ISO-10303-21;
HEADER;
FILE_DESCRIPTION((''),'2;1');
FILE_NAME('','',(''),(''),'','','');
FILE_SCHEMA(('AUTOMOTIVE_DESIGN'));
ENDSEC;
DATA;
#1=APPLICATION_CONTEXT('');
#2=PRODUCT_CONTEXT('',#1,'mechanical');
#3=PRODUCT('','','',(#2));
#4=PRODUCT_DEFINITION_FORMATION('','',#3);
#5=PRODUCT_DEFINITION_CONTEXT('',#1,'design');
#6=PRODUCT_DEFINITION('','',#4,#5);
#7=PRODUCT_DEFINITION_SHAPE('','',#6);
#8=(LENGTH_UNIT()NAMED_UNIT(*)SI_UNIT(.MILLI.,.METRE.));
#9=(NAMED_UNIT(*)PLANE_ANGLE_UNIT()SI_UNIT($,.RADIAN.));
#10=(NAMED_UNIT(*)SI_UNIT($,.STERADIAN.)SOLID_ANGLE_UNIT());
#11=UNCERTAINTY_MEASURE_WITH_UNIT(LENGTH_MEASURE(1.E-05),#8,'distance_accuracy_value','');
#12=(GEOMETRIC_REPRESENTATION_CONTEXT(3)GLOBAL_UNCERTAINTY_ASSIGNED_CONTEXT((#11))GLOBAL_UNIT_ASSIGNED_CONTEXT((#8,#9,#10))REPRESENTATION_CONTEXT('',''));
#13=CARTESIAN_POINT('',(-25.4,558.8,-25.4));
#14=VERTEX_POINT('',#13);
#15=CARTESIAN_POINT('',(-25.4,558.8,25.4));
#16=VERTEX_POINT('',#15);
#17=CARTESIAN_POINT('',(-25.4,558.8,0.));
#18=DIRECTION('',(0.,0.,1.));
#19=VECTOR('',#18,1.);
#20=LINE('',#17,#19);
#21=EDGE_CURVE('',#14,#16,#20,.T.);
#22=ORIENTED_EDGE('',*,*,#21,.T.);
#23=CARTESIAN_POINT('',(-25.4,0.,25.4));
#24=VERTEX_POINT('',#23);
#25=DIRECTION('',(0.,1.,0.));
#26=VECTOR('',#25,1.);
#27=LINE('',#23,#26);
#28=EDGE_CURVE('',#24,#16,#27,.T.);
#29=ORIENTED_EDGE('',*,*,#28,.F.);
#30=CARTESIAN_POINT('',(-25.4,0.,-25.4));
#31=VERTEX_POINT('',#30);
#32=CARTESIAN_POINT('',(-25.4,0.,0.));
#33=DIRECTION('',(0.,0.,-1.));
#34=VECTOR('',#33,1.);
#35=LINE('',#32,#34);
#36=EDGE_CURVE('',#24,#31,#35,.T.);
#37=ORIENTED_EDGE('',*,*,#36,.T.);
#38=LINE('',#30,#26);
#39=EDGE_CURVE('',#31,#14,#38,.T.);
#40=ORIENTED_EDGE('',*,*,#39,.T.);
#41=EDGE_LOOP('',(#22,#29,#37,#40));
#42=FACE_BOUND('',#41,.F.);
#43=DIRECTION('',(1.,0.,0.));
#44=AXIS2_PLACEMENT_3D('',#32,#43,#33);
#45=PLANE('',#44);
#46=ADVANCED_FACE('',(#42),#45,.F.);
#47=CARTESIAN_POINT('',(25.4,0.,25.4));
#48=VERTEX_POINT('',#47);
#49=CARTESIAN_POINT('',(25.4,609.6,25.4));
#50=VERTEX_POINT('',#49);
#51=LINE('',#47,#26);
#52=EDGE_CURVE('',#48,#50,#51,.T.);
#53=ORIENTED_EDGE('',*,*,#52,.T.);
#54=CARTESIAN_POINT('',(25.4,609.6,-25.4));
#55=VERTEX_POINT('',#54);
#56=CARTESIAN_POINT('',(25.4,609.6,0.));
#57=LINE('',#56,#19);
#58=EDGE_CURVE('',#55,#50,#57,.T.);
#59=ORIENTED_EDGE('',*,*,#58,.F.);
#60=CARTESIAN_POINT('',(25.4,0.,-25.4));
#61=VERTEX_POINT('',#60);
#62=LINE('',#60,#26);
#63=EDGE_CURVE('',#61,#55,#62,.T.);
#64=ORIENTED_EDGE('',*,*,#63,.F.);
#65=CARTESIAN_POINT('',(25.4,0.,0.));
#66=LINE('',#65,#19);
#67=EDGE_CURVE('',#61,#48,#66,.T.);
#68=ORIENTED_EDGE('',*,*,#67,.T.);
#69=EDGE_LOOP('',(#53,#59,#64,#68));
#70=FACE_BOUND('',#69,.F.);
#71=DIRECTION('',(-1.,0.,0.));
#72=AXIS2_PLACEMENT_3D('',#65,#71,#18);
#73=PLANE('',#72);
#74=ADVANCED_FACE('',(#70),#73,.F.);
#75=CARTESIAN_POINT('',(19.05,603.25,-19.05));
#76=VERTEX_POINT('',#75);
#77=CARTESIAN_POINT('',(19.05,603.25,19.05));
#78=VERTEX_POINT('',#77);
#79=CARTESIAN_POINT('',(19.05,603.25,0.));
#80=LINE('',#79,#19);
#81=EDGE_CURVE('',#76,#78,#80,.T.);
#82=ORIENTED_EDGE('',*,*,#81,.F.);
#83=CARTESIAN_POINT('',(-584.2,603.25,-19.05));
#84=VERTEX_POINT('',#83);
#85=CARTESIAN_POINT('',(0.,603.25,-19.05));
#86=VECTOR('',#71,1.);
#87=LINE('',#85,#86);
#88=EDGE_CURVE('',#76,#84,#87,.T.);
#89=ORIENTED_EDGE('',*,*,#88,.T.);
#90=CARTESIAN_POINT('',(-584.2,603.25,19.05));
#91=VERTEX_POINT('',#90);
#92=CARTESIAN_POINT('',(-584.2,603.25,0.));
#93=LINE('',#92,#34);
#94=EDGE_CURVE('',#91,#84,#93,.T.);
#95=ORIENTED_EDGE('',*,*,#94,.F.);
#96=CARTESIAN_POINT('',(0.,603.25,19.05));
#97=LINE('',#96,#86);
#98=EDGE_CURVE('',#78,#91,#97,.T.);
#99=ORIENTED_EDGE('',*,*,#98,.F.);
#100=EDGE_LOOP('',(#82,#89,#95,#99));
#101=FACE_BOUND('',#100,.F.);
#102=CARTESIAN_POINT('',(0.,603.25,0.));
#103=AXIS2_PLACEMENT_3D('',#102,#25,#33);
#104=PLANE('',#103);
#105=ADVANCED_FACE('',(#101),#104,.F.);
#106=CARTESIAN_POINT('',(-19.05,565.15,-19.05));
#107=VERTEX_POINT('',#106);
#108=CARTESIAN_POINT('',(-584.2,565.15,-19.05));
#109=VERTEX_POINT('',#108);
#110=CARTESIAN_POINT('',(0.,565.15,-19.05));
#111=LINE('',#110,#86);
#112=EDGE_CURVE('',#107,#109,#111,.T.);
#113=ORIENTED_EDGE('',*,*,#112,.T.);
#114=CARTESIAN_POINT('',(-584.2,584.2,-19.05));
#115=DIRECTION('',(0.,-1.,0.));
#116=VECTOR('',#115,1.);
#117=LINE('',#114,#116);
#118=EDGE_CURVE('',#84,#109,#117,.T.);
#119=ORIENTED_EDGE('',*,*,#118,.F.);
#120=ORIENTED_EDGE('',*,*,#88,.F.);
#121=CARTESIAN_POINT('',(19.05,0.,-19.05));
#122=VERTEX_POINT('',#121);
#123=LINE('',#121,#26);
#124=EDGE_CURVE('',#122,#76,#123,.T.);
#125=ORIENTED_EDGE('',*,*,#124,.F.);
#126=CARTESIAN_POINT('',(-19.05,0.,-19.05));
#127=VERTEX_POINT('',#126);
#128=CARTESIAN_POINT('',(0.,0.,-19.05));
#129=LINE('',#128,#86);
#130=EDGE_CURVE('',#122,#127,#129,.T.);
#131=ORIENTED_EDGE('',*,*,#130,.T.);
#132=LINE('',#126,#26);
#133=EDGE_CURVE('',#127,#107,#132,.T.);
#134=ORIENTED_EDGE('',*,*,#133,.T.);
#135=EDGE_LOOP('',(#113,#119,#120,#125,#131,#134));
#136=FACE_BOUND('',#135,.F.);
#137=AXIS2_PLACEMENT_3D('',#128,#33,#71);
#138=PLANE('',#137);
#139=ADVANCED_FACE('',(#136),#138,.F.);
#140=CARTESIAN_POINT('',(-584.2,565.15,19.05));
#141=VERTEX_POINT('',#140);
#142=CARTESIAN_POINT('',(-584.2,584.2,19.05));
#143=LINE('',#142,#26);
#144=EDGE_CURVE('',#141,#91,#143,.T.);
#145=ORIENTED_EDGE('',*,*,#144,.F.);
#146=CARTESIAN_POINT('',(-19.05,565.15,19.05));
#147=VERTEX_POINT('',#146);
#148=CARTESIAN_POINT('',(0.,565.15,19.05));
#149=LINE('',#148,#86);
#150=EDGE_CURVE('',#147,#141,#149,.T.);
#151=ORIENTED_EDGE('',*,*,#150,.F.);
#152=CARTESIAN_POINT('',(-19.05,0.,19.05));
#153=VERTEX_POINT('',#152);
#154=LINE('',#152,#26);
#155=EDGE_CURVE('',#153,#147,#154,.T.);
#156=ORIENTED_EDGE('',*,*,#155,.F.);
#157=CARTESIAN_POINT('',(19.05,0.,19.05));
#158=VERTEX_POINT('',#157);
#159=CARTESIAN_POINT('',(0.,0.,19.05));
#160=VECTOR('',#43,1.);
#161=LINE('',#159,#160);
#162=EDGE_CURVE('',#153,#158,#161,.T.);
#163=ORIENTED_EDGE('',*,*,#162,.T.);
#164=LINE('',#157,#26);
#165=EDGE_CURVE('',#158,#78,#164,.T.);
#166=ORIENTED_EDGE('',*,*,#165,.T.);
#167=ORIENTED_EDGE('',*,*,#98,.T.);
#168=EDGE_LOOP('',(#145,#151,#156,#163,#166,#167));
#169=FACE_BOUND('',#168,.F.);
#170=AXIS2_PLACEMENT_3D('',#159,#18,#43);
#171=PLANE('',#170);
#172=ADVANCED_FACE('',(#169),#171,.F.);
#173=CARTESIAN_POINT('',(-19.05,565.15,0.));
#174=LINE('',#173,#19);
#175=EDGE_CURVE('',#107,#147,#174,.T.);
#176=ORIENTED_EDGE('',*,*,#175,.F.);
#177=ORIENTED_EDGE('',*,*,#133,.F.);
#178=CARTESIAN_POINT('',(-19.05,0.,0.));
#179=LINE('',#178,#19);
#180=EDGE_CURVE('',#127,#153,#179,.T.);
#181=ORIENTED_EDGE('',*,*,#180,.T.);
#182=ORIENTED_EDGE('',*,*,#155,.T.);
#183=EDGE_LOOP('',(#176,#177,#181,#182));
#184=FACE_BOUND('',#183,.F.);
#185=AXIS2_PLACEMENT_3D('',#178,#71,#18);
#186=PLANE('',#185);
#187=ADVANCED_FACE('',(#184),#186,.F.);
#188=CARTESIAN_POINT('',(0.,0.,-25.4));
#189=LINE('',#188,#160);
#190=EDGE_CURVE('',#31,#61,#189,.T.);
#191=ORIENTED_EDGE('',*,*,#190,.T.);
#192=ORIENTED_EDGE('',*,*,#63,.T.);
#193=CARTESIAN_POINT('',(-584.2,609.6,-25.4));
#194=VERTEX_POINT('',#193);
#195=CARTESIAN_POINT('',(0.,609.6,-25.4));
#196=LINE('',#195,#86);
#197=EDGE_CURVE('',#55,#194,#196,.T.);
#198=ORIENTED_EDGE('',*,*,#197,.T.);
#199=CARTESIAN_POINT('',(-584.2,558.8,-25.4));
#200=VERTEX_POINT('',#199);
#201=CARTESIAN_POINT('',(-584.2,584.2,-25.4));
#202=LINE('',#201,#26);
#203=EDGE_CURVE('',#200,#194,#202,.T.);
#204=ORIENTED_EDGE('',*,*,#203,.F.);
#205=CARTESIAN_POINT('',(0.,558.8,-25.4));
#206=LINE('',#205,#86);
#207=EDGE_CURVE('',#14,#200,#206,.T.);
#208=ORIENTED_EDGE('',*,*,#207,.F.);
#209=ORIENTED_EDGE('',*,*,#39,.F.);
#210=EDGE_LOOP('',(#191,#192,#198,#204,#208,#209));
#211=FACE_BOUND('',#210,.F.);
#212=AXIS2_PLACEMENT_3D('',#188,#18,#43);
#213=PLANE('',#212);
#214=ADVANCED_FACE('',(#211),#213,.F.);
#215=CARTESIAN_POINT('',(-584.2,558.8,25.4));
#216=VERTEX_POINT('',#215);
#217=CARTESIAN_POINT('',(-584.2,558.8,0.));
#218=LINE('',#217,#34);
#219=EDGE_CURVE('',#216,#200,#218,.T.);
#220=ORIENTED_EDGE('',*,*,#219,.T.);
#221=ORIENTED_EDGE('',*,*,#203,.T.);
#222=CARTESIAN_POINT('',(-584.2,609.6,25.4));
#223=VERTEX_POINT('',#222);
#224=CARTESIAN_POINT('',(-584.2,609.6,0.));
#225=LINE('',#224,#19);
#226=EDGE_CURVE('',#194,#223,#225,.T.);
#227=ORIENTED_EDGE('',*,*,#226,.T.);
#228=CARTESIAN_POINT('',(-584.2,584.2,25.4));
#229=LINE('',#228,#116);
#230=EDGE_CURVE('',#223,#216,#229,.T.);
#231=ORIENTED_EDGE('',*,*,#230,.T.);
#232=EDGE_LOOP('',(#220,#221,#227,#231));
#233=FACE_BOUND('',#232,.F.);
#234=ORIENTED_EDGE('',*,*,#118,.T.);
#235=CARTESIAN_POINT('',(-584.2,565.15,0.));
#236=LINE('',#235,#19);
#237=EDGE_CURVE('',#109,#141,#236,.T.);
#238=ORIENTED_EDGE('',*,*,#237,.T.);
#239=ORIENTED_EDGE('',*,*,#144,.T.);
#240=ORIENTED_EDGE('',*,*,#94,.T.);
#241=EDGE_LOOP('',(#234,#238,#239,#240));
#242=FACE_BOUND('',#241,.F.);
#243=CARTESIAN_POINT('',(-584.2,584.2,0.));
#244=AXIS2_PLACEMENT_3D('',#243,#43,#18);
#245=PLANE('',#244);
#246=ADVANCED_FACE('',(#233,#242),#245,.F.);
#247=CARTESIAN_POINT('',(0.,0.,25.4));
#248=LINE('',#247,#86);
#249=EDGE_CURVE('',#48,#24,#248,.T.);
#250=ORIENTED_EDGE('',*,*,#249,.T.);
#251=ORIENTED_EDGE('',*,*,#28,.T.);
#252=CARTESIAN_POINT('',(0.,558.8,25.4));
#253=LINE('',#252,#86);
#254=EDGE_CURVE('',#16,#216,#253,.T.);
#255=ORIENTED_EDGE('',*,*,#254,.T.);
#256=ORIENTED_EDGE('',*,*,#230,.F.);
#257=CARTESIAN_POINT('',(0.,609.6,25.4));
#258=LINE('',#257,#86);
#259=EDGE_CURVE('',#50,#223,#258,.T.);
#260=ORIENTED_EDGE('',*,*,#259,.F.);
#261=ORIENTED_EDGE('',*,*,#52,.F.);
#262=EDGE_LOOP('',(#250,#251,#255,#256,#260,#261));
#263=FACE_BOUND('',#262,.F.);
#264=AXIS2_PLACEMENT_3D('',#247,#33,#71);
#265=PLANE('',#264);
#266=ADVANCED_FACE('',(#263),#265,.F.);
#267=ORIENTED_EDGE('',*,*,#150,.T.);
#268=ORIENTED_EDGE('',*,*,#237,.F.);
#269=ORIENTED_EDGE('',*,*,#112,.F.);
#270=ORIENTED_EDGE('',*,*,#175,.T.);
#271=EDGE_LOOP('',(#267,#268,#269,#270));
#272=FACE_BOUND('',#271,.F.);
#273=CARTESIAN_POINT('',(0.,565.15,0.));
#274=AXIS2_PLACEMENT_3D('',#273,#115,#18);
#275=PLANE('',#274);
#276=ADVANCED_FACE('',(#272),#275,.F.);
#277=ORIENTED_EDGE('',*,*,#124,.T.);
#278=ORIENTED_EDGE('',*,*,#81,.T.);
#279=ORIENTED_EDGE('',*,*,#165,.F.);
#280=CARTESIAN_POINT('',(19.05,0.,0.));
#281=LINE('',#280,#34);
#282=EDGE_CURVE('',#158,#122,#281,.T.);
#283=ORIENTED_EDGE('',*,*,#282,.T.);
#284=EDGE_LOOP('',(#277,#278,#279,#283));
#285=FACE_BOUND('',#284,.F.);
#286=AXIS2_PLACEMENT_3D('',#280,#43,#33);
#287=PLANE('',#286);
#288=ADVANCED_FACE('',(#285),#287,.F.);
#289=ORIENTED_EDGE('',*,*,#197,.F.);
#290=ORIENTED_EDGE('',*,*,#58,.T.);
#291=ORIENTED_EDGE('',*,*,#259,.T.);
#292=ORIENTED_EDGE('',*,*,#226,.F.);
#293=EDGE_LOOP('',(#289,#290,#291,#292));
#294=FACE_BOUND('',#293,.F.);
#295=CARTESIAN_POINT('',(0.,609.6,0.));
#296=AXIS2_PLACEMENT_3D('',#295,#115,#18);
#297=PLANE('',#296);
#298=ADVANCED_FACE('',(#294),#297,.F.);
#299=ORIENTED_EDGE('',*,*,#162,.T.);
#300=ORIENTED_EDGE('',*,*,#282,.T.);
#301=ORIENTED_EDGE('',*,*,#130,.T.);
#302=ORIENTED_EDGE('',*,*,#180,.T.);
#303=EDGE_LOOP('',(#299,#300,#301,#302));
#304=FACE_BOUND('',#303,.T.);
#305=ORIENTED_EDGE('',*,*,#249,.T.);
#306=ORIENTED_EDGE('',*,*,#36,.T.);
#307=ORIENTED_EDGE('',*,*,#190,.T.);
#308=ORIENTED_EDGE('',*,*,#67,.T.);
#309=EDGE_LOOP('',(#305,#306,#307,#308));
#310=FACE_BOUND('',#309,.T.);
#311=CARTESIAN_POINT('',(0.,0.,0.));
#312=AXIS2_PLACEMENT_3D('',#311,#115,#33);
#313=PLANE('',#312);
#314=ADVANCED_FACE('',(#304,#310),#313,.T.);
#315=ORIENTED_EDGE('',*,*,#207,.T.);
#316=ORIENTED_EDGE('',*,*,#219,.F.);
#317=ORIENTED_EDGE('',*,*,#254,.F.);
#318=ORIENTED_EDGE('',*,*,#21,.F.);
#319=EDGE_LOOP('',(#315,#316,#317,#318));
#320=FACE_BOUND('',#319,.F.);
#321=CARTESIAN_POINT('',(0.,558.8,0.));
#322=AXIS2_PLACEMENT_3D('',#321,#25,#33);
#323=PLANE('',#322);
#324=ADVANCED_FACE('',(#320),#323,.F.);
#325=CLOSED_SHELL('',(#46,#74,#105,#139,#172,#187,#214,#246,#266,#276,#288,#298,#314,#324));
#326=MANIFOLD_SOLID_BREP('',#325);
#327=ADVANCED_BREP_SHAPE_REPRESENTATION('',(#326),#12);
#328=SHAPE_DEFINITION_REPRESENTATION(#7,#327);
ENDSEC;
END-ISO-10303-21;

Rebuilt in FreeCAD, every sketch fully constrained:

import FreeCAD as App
import Part
import Sketcher
from FreeCAD import Vector
Q = App.Units.Quantity


def add_polygon(sketch, points):
    """Adds a closed chain of lines whose ends are joined by coincident constraints."""
    first, n = sketch.GeometryCount, len(points)
    for a, b in zip(points, points[1:] + points[:1]):
        sketch.addGeometry(Part.LineSegment(App.Vector(*a, 0), App.Vector(*b, 0)), False)
    for i in range(n):
        sketch.addConstraint(Sketcher.Constraint("Coincident", first + i, 2, first + (i + 1) % n, 1))

doc = App.newDocument("Part")
body = doc.addObject("PartDesign::Body", "Body")

# Sketch on XZ plane
sketch1 = body.newObject("Sketcher::SketchObject", "Sketch")
sketch1.AttachmentSupport = (doc.getObject("XZ_Plane"), [""])
sketch1.MapMode = "FlatFace"
add_polygon(sketch1, [(-25.4, 25.4), (-25.4, -25.4), (25.4, -25.4), (25.4, 25.4)])  # lines 0-3
add_polygon(sketch1, [(19.05, -19.05), (-19.05, -19.05), (-19.05, 19.05), (19.05, 19.05)])  # lines 4-7
sketch1.addConstraint(Sketcher.Constraint("Vertical", 0))
sketch1.addConstraint(Sketcher.Constraint("Horizontal", 1))
sketch1.addConstraint(Sketcher.Constraint("Vertical", 2))
sketch1.addConstraint(Sketcher.Constraint("Horizontal", 3))
sketch1.addConstraint(Sketcher.Constraint("Horizontal", 4))
sketch1.addConstraint(Sketcher.Constraint("Vertical", 5))
sketch1.addConstraint(Sketcher.Constraint("Horizontal", 6))
sketch1.addConstraint(Sketcher.Constraint("Vertical", 7))
sketch1.addConstraint(Sketcher.Constraint("Symmetric", 0, 2, 2, 2, -1, 1))
sketch1.addConstraint(Sketcher.Constraint("Symmetric", 4, 2, 6, 2, -1, 1))
sketch1.addConstraint(Sketcher.Constraint("Equal", 3, 0))
sketch1.addConstraint(Sketcher.Constraint("Equal", 6, 5))
sketch1.addConstraint(Sketcher.Constraint("DistanceX", 1, 1, 1, 2, Q("2 in")))
sketch1.addConstraint(Sketcher.Constraint("DistanceX", 4, 2, 4, 1, Q("1.5 in")))

# Sketch on XY plane
sketch2 = body.newObject("Sketcher::SketchObject", "Sketch001")
sketch2.AttachmentSupport = (doc.getObject("XY_Plane"), [""])
sketch2.MapMode = "FlatFace"
sketch2.addGeometry(Part.LineSegment(Vector(0, 0, 0), Vector(0, 584.2, 0)), False)
sketch2.addGeometry(Part.LineSegment(Vector(0, 584.2, 0), Vector(-584.2, 584.2, 0)), False)
sketch2.addConstraint(Sketcher.Constraint("Coincident", 0, 2, 1, 1))
sketch2.addConstraint(Sketcher.Constraint("Vertical", 0))
sketch2.addConstraint(Sketcher.Constraint("Horizontal", 1))
sketch2.addConstraint(Sketcher.Constraint("Coincident", 0, 1, -1, 1))
sketch2.addConstraint(Sketcher.Constraint("Equal", 1, 0))
sketch2.addConstraint(Sketcher.Constraint("DistanceX", 1, 2, 1, 1, Q("23 in")))
doc.recompute()

additivepipe = body.newObject("PartDesign::AdditivePipe", "AdditivePipe")
additivepipe.Profile = sketch1
additivepipe.Spine = (sketch2, ["Edge1", "Edge2"])
additivepipe.Transition = "Right corner"

doc.recompute()
